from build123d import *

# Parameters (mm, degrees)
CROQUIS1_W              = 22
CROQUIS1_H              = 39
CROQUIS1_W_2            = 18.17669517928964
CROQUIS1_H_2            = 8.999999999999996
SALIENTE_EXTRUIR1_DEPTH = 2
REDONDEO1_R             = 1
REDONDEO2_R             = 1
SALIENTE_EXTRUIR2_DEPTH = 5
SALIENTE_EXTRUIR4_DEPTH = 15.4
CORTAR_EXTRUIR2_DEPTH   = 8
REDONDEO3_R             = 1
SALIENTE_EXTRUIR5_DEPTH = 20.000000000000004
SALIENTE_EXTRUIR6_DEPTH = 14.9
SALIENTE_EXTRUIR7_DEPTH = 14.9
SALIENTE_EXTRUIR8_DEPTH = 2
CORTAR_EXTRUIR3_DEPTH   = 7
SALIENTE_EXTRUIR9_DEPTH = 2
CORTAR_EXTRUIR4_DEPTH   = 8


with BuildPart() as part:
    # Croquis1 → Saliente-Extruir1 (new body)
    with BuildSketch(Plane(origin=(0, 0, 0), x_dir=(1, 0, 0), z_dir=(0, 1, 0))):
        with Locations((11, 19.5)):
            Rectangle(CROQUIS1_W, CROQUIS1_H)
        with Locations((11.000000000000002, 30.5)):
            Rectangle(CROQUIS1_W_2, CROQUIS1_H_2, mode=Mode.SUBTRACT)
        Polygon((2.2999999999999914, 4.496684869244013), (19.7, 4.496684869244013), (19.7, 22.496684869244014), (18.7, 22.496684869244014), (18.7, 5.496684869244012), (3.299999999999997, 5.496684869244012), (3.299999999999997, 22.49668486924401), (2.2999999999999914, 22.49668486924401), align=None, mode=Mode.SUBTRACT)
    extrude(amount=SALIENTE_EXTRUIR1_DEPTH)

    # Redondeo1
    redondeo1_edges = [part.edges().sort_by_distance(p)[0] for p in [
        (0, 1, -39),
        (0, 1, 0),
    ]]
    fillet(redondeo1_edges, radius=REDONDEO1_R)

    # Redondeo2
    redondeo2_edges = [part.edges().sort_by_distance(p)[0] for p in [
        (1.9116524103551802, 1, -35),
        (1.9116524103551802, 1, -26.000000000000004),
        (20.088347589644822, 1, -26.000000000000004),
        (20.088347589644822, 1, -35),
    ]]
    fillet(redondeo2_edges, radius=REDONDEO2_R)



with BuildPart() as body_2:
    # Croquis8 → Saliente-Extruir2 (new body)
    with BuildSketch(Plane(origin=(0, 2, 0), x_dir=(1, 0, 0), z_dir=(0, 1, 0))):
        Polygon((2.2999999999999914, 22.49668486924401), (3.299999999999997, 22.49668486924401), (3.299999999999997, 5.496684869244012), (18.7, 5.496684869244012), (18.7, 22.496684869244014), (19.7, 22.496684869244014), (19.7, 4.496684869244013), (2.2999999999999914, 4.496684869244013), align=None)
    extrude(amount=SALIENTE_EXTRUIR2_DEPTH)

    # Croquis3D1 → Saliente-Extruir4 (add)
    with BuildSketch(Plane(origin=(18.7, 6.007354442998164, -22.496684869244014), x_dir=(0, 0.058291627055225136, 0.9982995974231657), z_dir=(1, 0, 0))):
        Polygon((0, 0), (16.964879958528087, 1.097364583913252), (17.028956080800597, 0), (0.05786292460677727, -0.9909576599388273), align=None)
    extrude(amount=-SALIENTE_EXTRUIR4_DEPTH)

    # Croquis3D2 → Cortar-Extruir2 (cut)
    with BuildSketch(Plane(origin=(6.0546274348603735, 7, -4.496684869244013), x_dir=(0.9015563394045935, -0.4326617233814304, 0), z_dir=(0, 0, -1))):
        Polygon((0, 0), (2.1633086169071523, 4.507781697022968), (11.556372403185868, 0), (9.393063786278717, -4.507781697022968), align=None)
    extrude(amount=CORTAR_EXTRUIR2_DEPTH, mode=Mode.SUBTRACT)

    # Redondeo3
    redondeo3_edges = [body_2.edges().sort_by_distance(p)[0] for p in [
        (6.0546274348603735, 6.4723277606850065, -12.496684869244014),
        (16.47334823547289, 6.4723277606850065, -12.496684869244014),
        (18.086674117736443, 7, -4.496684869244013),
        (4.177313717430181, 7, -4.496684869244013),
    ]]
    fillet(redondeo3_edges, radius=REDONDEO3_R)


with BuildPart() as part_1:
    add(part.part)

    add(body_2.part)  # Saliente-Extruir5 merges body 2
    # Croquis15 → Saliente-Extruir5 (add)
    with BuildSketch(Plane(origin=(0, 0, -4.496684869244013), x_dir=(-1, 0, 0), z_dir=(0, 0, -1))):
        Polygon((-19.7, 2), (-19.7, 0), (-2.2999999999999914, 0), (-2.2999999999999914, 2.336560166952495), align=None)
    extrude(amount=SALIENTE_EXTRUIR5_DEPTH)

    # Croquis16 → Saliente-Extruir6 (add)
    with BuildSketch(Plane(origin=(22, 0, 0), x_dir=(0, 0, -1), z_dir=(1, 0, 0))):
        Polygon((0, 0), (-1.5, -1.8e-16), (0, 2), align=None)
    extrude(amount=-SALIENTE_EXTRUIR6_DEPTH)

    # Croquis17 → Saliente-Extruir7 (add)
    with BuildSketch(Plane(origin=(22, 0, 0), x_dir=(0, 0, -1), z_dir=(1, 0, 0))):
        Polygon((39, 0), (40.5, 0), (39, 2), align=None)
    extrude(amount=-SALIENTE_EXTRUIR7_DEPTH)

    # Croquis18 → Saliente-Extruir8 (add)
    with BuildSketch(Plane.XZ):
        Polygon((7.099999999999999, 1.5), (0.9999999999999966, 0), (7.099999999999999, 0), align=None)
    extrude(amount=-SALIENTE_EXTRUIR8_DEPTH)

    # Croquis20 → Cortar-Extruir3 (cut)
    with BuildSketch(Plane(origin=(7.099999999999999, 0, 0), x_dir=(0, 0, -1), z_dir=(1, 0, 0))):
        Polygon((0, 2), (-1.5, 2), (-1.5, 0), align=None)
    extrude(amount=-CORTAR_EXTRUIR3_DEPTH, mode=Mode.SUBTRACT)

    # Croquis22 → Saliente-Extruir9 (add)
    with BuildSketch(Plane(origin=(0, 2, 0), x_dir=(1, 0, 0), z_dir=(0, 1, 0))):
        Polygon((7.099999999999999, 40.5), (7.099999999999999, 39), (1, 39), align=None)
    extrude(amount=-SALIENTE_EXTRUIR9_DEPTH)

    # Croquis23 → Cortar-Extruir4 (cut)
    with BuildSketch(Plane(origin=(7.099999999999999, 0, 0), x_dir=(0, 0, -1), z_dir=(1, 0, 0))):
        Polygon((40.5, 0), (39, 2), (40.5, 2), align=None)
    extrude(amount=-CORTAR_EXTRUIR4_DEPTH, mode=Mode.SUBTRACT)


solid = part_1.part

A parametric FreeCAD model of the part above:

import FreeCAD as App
import Part
import Sketcher

V = App.Vector


def edges_at(feature, points):
    """Names of the edges that pass closest to the given points."""
    edges = feature.Shape.Edges
    near = lambda p: min(range(len(edges)), key=lambda i: edges[i].distToShape(Part.Vertex(*p))[0])
    return sorted({f"Edge{near(p) + 1}" for p in points})

doc = App.newDocument("Part")
body = doc.addObject("PartDesign::Body", "Body")

# Sketch on XZ plane
sketch1 = body.newObject("Sketcher::SketchObject", "Sketch")
sketch1.AttachmentSupport = (doc.getObject("XZ_Plane"), [""])
sketch1.MapMode = "FlatFace"
sketch1.addGeometry([
    Part.LineSegment(V(0, -39, 0), V(0, 0, 0)),  # 0
    Part.LineSegment(V(0, 0, 0), V(22, 0, 0)),  # 1
    Part.LineSegment(V(22, 0, 0), V(22, -39, 0)),  # 2
    Part.LineSegment(V(22, -39, 0), V(0, -39, 0)),  # 3
    Part.LineSegment(V(19.7, -4.5, 0), V(2.3, -4.5, 0)),  # 4
    Part.LineSegment(V(2.3, -4.5, 0), V(2.3, -22.5, 0)),  # 5
    Part.LineSegment(V(2.3, -22.5, 0), V(3.3, -22.5, 0)),  # 6
    Part.LineSegment(V(3.3, -22.5, 0), V(3.3, -5.5, 0)),  # 7
    Part.LineSegment(V(3.3, -5.5, 0), V(18.7, -5.5, 0)),  # 8
    Part.LineSegment(V(18.7, -5.5, 0), V(18.7, -22.5, 0)),  # 9
    Part.LineSegment(V(18.7, -22.5, 0), V(19.7, -22.5, 0)),  # 10
    Part.LineSegment(V(19.7, -22.5, 0), V(19.7, -4.5, 0)),  # 11
    Part.LineSegment(V(20.1, -26, 0), V(1.9, -26, 0)),  # 12
    Part.LineSegment(V(1.9, -26, 0), V(1.9, -35, 0)),  # 13
    Part.LineSegment(V(1.9, -35, 0), V(20.1, -35, 0)),  # 14
    Part.LineSegment(V(20.1, -35, 0), V(20.1, -26, 0)),  # 15
], False)
sketch1.addConstraint([
    Sketcher.Constraint("Coincident", 0, 2, 1, 1),
    Sketcher.Constraint("Coincident", 1, 2, 2, 1),
    Sketcher.Constraint("Coincident", 2, 2, 3, 1),
    Sketcher.Constraint("Coincident", 3, 2, 0, 1),
    Sketcher.Constraint("Coincident", 4, 2, 5, 1),
    Sketcher.Constraint("Coincident", 5, 2, 6, 1),
    Sketcher.Constraint("Coincident", 6, 2, 7, 1),
    Sketcher.Constraint("Coincident", 7, 2, 8, 1),
    Sketcher.Constraint("Coincident", 8, 2, 9, 1),
    Sketcher.Constraint("Coincident", 9, 2, 10, 1),
    Sketcher.Constraint("Coincident", 10, 2, 11, 1),
    Sketcher.Constraint("Coincident", 11, 2, 4, 1),
    Sketcher.Constraint("Coincident", 12, 2, 13, 1),
    Sketcher.Constraint("Coincident", 13, 2, 14, 1),
    Sketcher.Constraint("Coincident", 14, 2, 15, 1),
    Sketcher.Constraint("Coincident", 15, 2, 12, 1),
    Sketcher.Constraint("Vertical", 0),
    Sketcher.Constraint("Horizontal", 1),
    Sketcher.Constraint("Vertical", 2),
    Sketcher.Constraint("Horizontal", 3),
    Sketcher.Constraint("Horizontal", 4),
    Sketcher.Constraint("Vertical", 5),
    Sketcher.Constraint("Horizontal", 6),
    Sketcher.Constraint("Vertical", 7),
    Sketcher.Constraint("Horizontal", 8),
    Sketcher.Constraint("Vertical", 9),
    Sketcher.Constraint("Horizontal", 10),
    Sketcher.Constraint("Vertical", 11),
    Sketcher.Constraint("Horizontal", 12),
    Sketcher.Constraint("Vertical", 13),
    Sketcher.Constraint("Horizontal", 14),
    Sketcher.Constraint("Vertical", 15),
    Sketcher.Constraint("Coincident", 0, 2, -1, 1),
    Sketcher.Constraint("Horizontal", 6, 2, 9, 2),
    Sketcher.Constraint("Equal", 6, 10),
    Sketcher.Constraint("DistanceX", 1, 1, 1, 2, 22.0),
    Sketcher.Constraint("DistanceX", 6, 1, 6, 2, 1.0),
    Sketcher.Constraint("DistanceY", 0, 1, 0, 2, 39.0),
    Sketcher.Constraint("DistanceY", 5, 2, 5, 1, 18.0),
    Sketcher.Constraint("DistanceY", 7, 1, 7, 2, 17.0),
    Sketcher.Constraint("DistanceY", 13, 2, 13, 1, 9.0),
    Sketcher.Constraint("DistanceX", 4, 2, 4, 1, 17.4),
    Sketcher.Constraint("DistanceY", 12, 2, -1, 1, 26.0),
    Sketcher.Constraint("DistanceX", -1, 1, 4, 2, 2.3),
    Sketcher.Constraint("DistanceX", 12, 2, 12, 1, 18.176695),
    Sketcher.Constraint("DistanceY", 4, 2, -1, 1, 4.496685),
    Sketcher.Constraint("DistanceX", -1, 1, 12, 2, 1.911652),
])
pad1 = body.newObject("PartDesign::Pad", "Pad")
pad1.Profile = sketch1
pad1.Length = 2
pad1.Reversed = True
doc.recompute()

fillet = body.newObject("PartDesign::Fillet", "Fillet")
fillet.Base = (pad1, edges_at(pad1, [(0, 1, -39), (0, 1, 0)]))
fillet.Radius = 1
doc.recompute()

fillet2 = body.newObject("PartDesign::Fillet", "Fillet001")
fillet2.Base = (fillet, edges_at(fillet, [
    (1.912, 1, -35),
    (1.912, 1, -26),
    (20.088, 1, -26),
    (20.088, 1, -35),
]))
fillet2.Radius = 1
body2 = doc.addObject("PartDesign::Body", "Body001")

# Sketch on XZ plane
sketch2 = body2.newObject("Sketcher::SketchObject", "Sketch001")
sketch2.AttachmentSupport = (doc.getObject("XZ_Plane001"), [""])
sketch2.MapMode = "FlatFace"
sketch2.AttachmentOffset = App.Placement(V(0, 0, -2), App.Rotation())
sketch2.addGeometry([
    Part.LineSegment(V(3.3, -22.5, 0), V(2.3, -22.5, 0)),  # 0
    Part.LineSegment(V(2.3, -22.5, 0), V(2.3, -4.5, 0)),  # 1
    Part.LineSegment(V(2.3, -4.5, 0), V(19.7, -4.5, 0)),  # 2
    Part.LineSegment(V(19.7, -4.5, 0), V(19.7, -22.5, 0)),  # 3
    Part.LineSegment(V(19.7, -22.5, 0), V(18.7, -22.5, 0)),  # 4
    Part.LineSegment(V(18.7, -22.5, 0), V(18.7, -5.5, 0)),  # 5
    Part.LineSegment(V(18.7, -5.5, 0), V(3.3, -5.5, 0)),  # 6
    Part.LineSegment(V(3.3, -5.5, 0), V(3.3, -22.5, 0)),  # 7
], False)
sketch2.addConstraint([
    Sketcher.Constraint("Coincident", 0, 2, 1, 1),
    Sketcher.Constraint("Coincident", 1, 2, 2, 1),
    Sketcher.Constraint("Coincident", 2, 2, 3, 1),
    Sketcher.Constraint("Coincident", 3, 2, 4, 1),
    Sketcher.Constraint("Coincident", 4, 2, 5, 1),
    Sketcher.Constraint("Coincident", 5, 2, 6, 1),
    Sketcher.Constraint("Coincident", 6, 2, 7, 1),
    Sketcher.Constraint("Coincident", 7, 2, 0, 1),
    Sketcher.Constraint("Horizontal", 0),
    Sketcher.Constraint("Vertical", 1),
    Sketcher.Constraint("Horizontal", 2),
    Sketcher.Constraint("Vertical", 3),
    Sketcher.Constraint("Horizontal", 4),
    Sketcher.Constraint("Vertical", 5),
    Sketcher.Constraint("Horizontal", 6),
    Sketcher.Constraint("Vertical", 7),
    Sketcher.Constraint("Horizontal", 0, 2, 3, 2),
    Sketcher.Constraint("Equal", 0, 4),
    Sketcher.Constraint("DistanceX", 0, 2, 0, 1, 1.0),
    Sketcher.Constraint("DistanceY", 1, 1, 1, 2, 18.0),
    Sketcher.Constraint("DistanceY", 5, 1, 5, 2, 17.0),
    Sketcher.Constraint("DistanceX", 2, 1, 2, 2, 17.4),
    Sketcher.Constraint("DistanceX", -1, 1, 0, 2, 2.3),
    Sketcher.Constraint("DistanceY", 0, 2, -1, 1, 22.496685),
])
pad2 = body2.newObject("PartDesign::Pad", "Pad001")
pad2.Profile = sketch2
pad2.Length = 5
pad2.Reversed = True

# Sketch on YZ plane
sketch3 = body2.newObject("Sketcher::SketchObject", "Sketch002")
sketch3.AttachmentSupport = (doc.getObject("YZ_Plane001"), [""])
sketch3.MapMode = "FlatFace"
sketch3.AttachmentOffset = App.Placement(V(0, 0, 18.7), App.Rotation())
sketch3.addGeometry([
    Part.LineSegment(V(5.9, -5.5, 0), V(6, -22.5, 0)),
    Part.LineSegment(V(6, -22.5, 0), V(7, -22.5, 0)),
    Part.LineSegment(V(7, -22.5, 0), V(7, -5.5, 0)),
    Part.LineSegment(V(7, -5.5, 0), V(5.9, -5.5, 0)),
], False)
sketch3.addConstraint([
    Sketcher.Constraint("Coincident", 0, 2, 1, 1),
    Sketcher.Constraint("Coincident", 1, 2, 2, 1),
    Sketcher.Constraint("Coincident", 2, 2, 3, 1),
    Sketcher.Constraint("Coincident", 3, 2, 0, 1),
    Sketcher.Constraint("Horizontal", 1),
    Sketcher.Constraint("Vertical", 2),
    Sketcher.Constraint("Horizontal", 3),
    Sketcher.Constraint("DistanceY", 2, 1, 2, 2, 17.0),
    Sketcher.Constraint("DistanceX", -1, 1, 1, 2, 7.0),
    Sketcher.Constraint("DistanceX", 1, 1, 1, 2, 0.992646),
    Sketcher.Constraint("DistanceX", 3, 2, 3, 1, 1.099234),
    Sketcher.Constraint("DistanceY", 0, 2, -1, 1, 22.496685),
])
pad3 = body2.newObject("PartDesign::Pad", "Pad002")
pad3.Profile = sketch3
pad3.Length = 15.4
pad3.Reversed = True

# Sketch on XY plane
sketch4 = body2.newObject("Sketcher::SketchObject", "Sketch003")
sketch4.AttachmentSupport = (doc.getObject("XY_Plane001"), [""])
sketch4.MapMode = "FlatFace"
sketch4.AttachmentOffset = App.Placement(V(0, 0, -4.496685), App.Rotation())
sketch4.addGeometry([
    Part.LineSegment(V(6.1, 2, 0), V(6.1, 7, 0)),
    Part.LineSegment(V(6.1, 7, 0), V(16.5, 7, 0)),
    Part.LineSegment(V(16.5, 7, 0), V(16.5, 2, 0)),
    Part.LineSegment(V(16.5, 2, 0), V(6.1, 2, 0)),
], False)
sketch4.addConstraint([
    Sketcher.Constraint("Coincident", 0, 2, 1, 1),
    Sketcher.Constraint("Coincident", 1, 2, 2, 1),
    Sketcher.Constraint("Coincident", 2, 2, 3, 1),
    Sketcher.Constraint("Coincident", 3, 2, 0, 1),
    Sketcher.Constraint("Vertical", 0),
    Sketcher.Constraint("Horizontal", 1),
    Sketcher.Constraint("Vertical", 2),
    Sketcher.Constraint("Horizontal", 3),
    Sketcher.Constraint("DistanceY", 0, 1, 0, 2, 5.0),
    Sketcher.Constraint("DistanceY", -1, 1, 0, 2, 7.0),
    Sketcher.Constraint("DistanceX", 1, 1, 1, 2, 10.418721),
    Sketcher.Constraint("DistanceX", -1, 1, 1, 2, 16.473348),
])
pocket1 = body2.newObject("PartDesign::Pocket", "Pocket")
pocket1.Profile = sketch4
pocket1.Length = 8
doc.recompute()

fillet3 = body2.newObject("PartDesign::Fillet", "Fillet002")
fillet3.Base = (pocket1, edges_at(pocket1, [
    (6.055, 6.472, -12.497),
    (16.473, 6.472, -12.497),
    (18.087, 7, -4.497),
    (4.177, 7, -4.497),
]))
fillet3.Radius = 1
body.AllowCompound = True
doc.recompute()

boolean = body.newObject("PartDesign::Boolean", "Boolean")
boolean.Type = "Fuse"
boolean.addObjects([body2])

# Sketch on XY plane
sketch5 = body.newObject("Sketcher::SketchObject", "Sketch004")
sketch5.AttachmentSupport = (doc.getObject("XY_Plane"), [""])
sketch5.MapMode = "FlatFace"
sketch5.AttachmentOffset = App.Placement(V(0, 0, -4.496685), App.Rotation())
sketch5.addGeometry([
    Part.LineSegment(V(19.7, 2, 0), V(19.7, 0, 0)),
    Part.LineSegment(V(19.7, 0, 0), V(2.3, 0, 0)),
    Part.LineSegment(V(2.3, 0, 0), V(2.3, 2.3, 0)),
    Part.LineSegment(V(2.3, 2.3, 0), V(19.7, 2, 0)),
], False)
sketch5.addConstraint([
    Sketcher.Constraint("Coincident", 0, 2, 1, 1),
    Sketcher.Constraint("Coincident", 1, 2, 2, 1),
    Sketcher.Constraint("Coincident", 2, 2, 3, 1),
    Sketcher.Constraint("Coincident", 3, 2, 0, 1),
    Sketcher.Constraint("Vertical", 0),
    Sketcher.Constraint("Horizontal", 1),
    Sketcher.Constraint("Vertical", 2),
    Sketcher.Constraint("PointOnObject", 0, 2, -1),
    Sketcher.Constraint("DistanceY", 0, 2, 0, 1, 2.0),
    Sketcher.Constraint("DistanceX", 1, 2, 1, 1, 17.4),
    Sketcher.Constraint("DistanceX", -1, 1, 0, 2, 19.7),
    Sketcher.Constraint("DistanceY", 2, 1, 2, 2, 2.33656),
])
pad4 = body.newObject("PartDesign::Pad", "Pad003")
pad4.Profile = sketch5
pad4.Length = 20
pad4.Reversed = True

# Sketch on YZ plane
sketch6 = body.newObject("Sketcher::SketchObject", "Sketch005")
sketch6.AttachmentSupport = (doc.getObject("YZ_Plane"), [""])
sketch6.MapMode = "FlatFace"
sketch6.AttachmentOffset = App.Placement(V(0, 0, 22), App.Rotation())
sketch6.addGeometry([
    Part.LineSegment(V(0, 1.5, 0), V(0, 0, 0)),
    Part.LineSegment(V(0, 0, 0), V(2, 0, 0)),
    Part.LineSegment(V(2, 0, 0), V(0, 1.5, 0)),
], False)
sketch6.addConstraint([
    Sketcher.Constraint("Coincident", 0, 2, 1, 1),
    Sketcher.Constraint("Coincident", 1, 2, 2, 1),
    Sketcher.Constraint("Coincident", 2, 2, 0, 1),
    Sketcher.Constraint("Vertical", 0),
    Sketcher.Constraint("Horizontal", 1),
    Sketcher.Constraint("Coincident", 0, 2, -1, 1),
    Sketcher.Constraint("DistanceX", 1, 1, 1, 2, 2.0),
    Sketcher.Constraint("DistanceY", 0, 2, 0, 1, 1.5),
])
pad5 = body.newObject("PartDesign::Pad", "Pad004")
pad5.Profile = sketch6
pad5.Length = 14.9
pad5.Reversed = True

# Sketch on YZ plane
sketch7 = body.newObject("Sketcher::SketchObject", "Sketch006")
sketch7.AttachmentSupport = (doc.getObject("YZ_Plane"), [""])
sketch7.MapMode = "FlatFace"
sketch7.AttachmentOffset = App.Placement(V(0, 0, 22), App.Rotation())
sketch7.addGeometry([
    Part.LineSegment(V(0, -39, 0), V(0, -40.5, 0)),
    Part.LineSegment(V(0, -40.5, 0), V(2, -39, 0)),
    Part.LineSegment(V(2, -39, 0), V(0, -39, 0)),
], False)
sketch7.addConstraint([
    Sketcher.Constraint("Coincident", 0, 2, 1, 1),
    Sketcher.Constraint("Coincident", 1, 2, 2, 1),
    Sketcher.Constraint("Coincident", 2, 2, 0, 1),
    Sketcher.Constraint("Vertical", 0),
    Sketcher.Constraint("Horizontal", 2),
    Sketcher.Constraint("PointOnObject", 0, 2, -2),
    Sketcher.Constraint("DistanceX", 2, 2, 2, 1, 2.0),
    Sketcher.Constraint("DistanceY", 0, 2, 0, 1, 1.5),
    Sketcher.Constraint("DistanceY", 1, 2, -1, 1, 39.0),
])
pad6 = body.newObject("PartDesign::Pad", "Pad005")
pad6.Profile = sketch7
pad6.Length = 14.9
pad6.Reversed = True

# Sketch on XZ plane
sketch8 = body.newObject("Sketcher::SketchObject", "Sketch007")
sketch8.AttachmentSupport = (doc.getObject("XZ_Plane"), [""])
sketch8.MapMode = "FlatFace"
sketch8.addGeometry([
    Part.LineSegment(V(7.1, 1.5, 0), V(1, 0, 0)),
    Part.LineSegment(V(1, 0, 0), V(7.1, 0, 0)),
    Part.LineSegment(V(7.1, 0, 0), V(7.1, 1.5, 0)),
], False)
sketch8.addConstraint([
    Sketcher.Constraint("Coincident", 0, 2, 1, 1),
    Sketcher.Constraint("Coincident", 1, 2, 2, 1),
    Sketcher.Constraint("Coincident", 2, 2, 0, 1),
    Sketcher.Constraint("Horizontal", 1),
    Sketcher.Constraint("Vertical", 2),
    Sketcher.Constraint("PointOnObject", 0, 2, -1),
    Sketcher.Constraint("DistanceX", 1, 1, 1, 2, 6.1),
    Sketcher.Constraint("DistanceY", 2, 1, 2, 2, 1.5),
    Sketcher.Constraint("DistanceX", -1, 1, 0, 2, 1.0),
])
pad7 = body.newObject("PartDesign::Pad", "Pad006")
pad7.Profile = sketch8
pad7.Length = 2
pad7.Reversed = True

# Sketch on YZ plane
sketch9 = body.newObject("Sketcher::SketchObject", "Sketch008")
sketch9.AttachmentSupport = (doc.getObject("YZ_Plane"), [""])
sketch9.MapMode = "FlatFace"
sketch9.AttachmentOffset = App.Placement(V(0, 0, 7.1), App.Rotation())
sketch9.addGeometry([
    Part.LineSegment(V(2, 0, 0), V(2, 1.5, 0)),
    Part.LineSegment(V(2, 1.5, 0), V(0, 1.5, 0)),
    Part.LineSegment(V(0, 1.5, 0), V(2, 0, 0)),
], False)
sketch9.addConstraint([
    Sketcher.Constraint("Coincident", 0, 2, 1, 1),
    Sketcher.Constraint("Coincident", 1, 2, 2, 1),
    Sketcher.Constraint("Coincident", 2, 2, 0, 1),
    Sketcher.Constraint("Vertical", 0),
    Sketcher.Constraint("Horizontal", 1),
    Sketcher.Constraint("PointOnObject", 1, 2, -2),
    Sketcher.Constraint("PointOnObject", 2, 2, -1),
    Sketcher.Constraint("DistanceX", 1, 2, 1, 1, 2.0),
    Sketcher.Constraint("DistanceY", 0, 1, 0, 2, 1.5),
])
pocket2 = body.newObject("PartDesign::Pocket", "Pocket001")
pocket2.Profile = sketch9
pocket2.Length = 7

# Sketch on XZ plane
sketch10 = body.newObject("Sketcher::SketchObject", "Sketch009")
sketch10.AttachmentSupport = (doc.getObject("XZ_Plane"), [""])
sketch10.MapMode = "FlatFace"
sketch10.AttachmentOffset = App.Placement(V(0, 0, -2), App.Rotation())
sketch10.addGeometry([
    Part.LineSegment(V(7.1, -39, 0), V(7.1, -40.5, 0)),
    Part.LineSegment(V(7.1, -40.5, 0), V(1, -39, 0)),
    Part.LineSegment(V(1, -39, 0), V(7.1, -39, 0)),
], False)
sketch10.addConstraint([
    Sketcher.Constraint("Coincident", 0, 2, 1, 1),
    Sketcher.Constraint("Coincident", 1, 2, 2, 1),
    Sketcher.Constraint("Coincident", 2, 2, 0, 1),
    Sketcher.Constraint("Vertical", 0),
    Sketcher.Constraint("Horizontal", 2),
    Sketcher.Constraint("DistanceX", 2, 1, 2, 2, 6.1),
    Sketcher.Constraint("DistanceY", 0, 2, 0, 1, 1.5),
    Sketcher.Constraint("DistanceX", -1, 1, 1, 2, 1.0),
    Sketcher.Constraint("DistanceY", 1, 2, -1, 1, 39.0),
])
pad8 = body.newObject("PartDesign::Pad", "Pad007")
pad8.Profile = sketch10
pad8.Length = 2

# Sketch on YZ plane
sketch11 = body.newObject("Sketcher::SketchObject", "Sketch010")
sketch11.AttachmentSupport = (doc.getObject("YZ_Plane"), [""])
sketch11.MapMode = "FlatFace"
sketch11.AttachmentOffset = App.Placement(V(0, 0, 7.1), App.Rotation())
sketch11.addGeometry([
    Part.LineSegment(V(2, -39, 0), V(0, -40.5, 0)),
    Part.LineSegment(V(0, -40.5, 0), V(2, -40.5, 0)),
    Part.LineSegment(V(2, -40.5, 0), V(2, -39, 0)),
], False)
sketch11.addConstraint([
    Sketcher.Constraint("Coincident", 0, 2, 1, 1),
    Sketcher.Constraint("Coincident", 1, 2, 2, 1),
    Sketcher.Constraint("Coincident", 2, 2, 0, 1),
    Sketcher.Constraint("Horizontal", 1),
    Sketcher.Constraint("Vertical", 2),
    Sketcher.Constraint("PointOnObject", 0, 2, -2),
    Sketcher.Constraint("DistanceX", 1, 1, 1, 2, 2.0),
    Sketcher.Constraint("DistanceY", 2, 1, 2, 2, 1.5),
    Sketcher.Constraint("DistanceY", 2, 2, -1, 1, 39.0),
])
pocket3 = body.newObject("PartDesign::Pocket", "Pocket002")
pocket3.Profile = sketch11
pocket3.Length = 8

doc.recompute()
